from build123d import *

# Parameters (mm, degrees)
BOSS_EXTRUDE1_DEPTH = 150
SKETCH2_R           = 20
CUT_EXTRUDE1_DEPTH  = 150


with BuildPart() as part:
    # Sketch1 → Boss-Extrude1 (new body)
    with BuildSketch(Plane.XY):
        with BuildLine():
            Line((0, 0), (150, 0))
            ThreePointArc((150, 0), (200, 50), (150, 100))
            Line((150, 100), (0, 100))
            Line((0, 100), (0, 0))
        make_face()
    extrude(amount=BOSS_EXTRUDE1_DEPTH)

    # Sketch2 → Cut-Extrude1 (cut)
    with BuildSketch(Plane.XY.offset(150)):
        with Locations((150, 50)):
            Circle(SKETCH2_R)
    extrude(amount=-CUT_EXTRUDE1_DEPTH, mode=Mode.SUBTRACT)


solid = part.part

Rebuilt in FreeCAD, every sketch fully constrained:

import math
import FreeCAD as App
import Part
import Sketcher

doc = App.newDocument("Part")
body = doc.addObject("PartDesign::Body", "Body")

# Sketch on XY plane
sketch1 = body.newObject("Sketcher::SketchObject", "Sketch")
sketch1.AttachmentSupport = (doc.getObject("XY_Plane"), [""])
sketch1.MapMode = "FlatFace"
sketch1.addGeometry([
    Part.LineSegment(App.Vector(0, 0, 0), App.Vector(150, 0, 0)),
    Part.ArcOfCircle(Part.Circle(App.Vector(150, 50, 0), App.Vector(0, 0, 1), 50), math.radians(-90), math.radians(90)),
    Part.LineSegment(App.Vector(150, 100, 0), App.Vector(0, 100, 0)),
    Part.LineSegment(App.Vector(0, 100, 0), App.Vector(0, 0, 0)),
], False)
sketch1.addConstraint([
    Sketcher.Constraint("Tangent", 0, 2, 1, 1),
    Sketcher.Constraint("Tangent", 1, 2, 2, 1),
    Sketcher.Constraint("Coincident", 2, 2, 3, 1),
    Sketcher.Constraint("Coincident", 3, 2, 0, 1),
    Sketcher.Constraint("Horizontal", 0),
    Sketcher.Constraint("Horizontal", 2),
    Sketcher.Constraint("Vertical", 3),
    Sketcher.Constraint("Coincident", 3, 2, -1, 1),
    Sketcher.Constraint("Radius", 1, 50.0),
    Sketcher.Constraint("DistanceX", 0, 1, 0, 2, 150.0),
])
pad1 = body.newObject("PartDesign::Pad", "Pad")
pad1.Profile = sketch1
pad1.Length = 150

# Sketch on XY plane
sketch2 = body.newObject("Sketcher::SketchObject", "Sketch001")
sketch2.AttachmentSupport = (doc.getObject("XY_Plane"), [""])
sketch2.MapMode = "FlatFace"
sketch2.AttachmentOffset = App.Placement(App.Vector(0, 0, 150), App.Rotation())
sketch2.addGeometry(Part.Circle(App.Vector(150, 50, 0), App.Vector(0, 0, 1), 20), False)
sketch2.addConstraint([
    Sketcher.Constraint("Diameter", 0, 40.0),
    Sketcher.Constraint("DistanceX", -1, 1, 0, 3, 150.0),
    Sketcher.Constraint("DistanceY", -1, 1, 0, 3, 50.0),
])
pocket1 = body.newObject("PartDesign::Pocket", "Pocket")
pocket1.Profile = sketch2
pocket1.Length = 150

doc.recompute()
